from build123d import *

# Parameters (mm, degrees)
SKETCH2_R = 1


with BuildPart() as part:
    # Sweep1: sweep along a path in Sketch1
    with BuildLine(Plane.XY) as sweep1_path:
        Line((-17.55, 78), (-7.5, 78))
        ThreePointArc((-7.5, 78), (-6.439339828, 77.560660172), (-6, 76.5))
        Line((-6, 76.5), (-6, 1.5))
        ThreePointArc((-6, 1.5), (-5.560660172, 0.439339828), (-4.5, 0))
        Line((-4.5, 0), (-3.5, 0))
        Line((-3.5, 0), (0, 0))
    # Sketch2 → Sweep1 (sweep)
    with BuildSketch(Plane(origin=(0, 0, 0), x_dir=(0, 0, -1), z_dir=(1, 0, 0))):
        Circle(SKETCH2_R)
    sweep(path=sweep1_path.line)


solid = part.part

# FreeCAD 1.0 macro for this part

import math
import FreeCAD as App
import Part
import Sketcher
Q = App.Units.Quantity

doc = App.newDocument("Part")
body = doc.addObject("PartDesign::Body", "Body")

# Sketch on YZ plane
sketch1 = body.newObject("Sketcher::SketchObject", "Sketch")
sketch1.AttachmentSupport = (doc.getObject("YZ_Plane"), [""])
sketch1.MapMode = "FlatFace"
sketch1.addGeometry(Part.Circle(App.Vector(0, 0, 0), App.Vector(0, 0, 1), 1), False)
sketch1.addConstraint([
    Sketcher.Constraint("Coincident", 0, 3, -1, 1),
    Sketcher.Constraint("Diameter", 0, Q("2 mm")),
])

# Sketch on XY plane
sketch2 = body.newObject("Sketcher::SketchObject", "Sketch001")
sketch2.AttachmentSupport = (doc.getObject("XY_Plane"), [""])
sketch2.MapMode = "FlatFace"
sketch2.addGeometry([
    Part.LineSegment(App.Vector(-17.55, 78, 0), App.Vector(-7.5, 78, 0)),  # 0
    Part.ArcOfCircle(Part.Circle(App.Vector(-7.5, 76.5, 0), App.Vector(0, 0, 1), 1.5), math.radians(0), math.radians(90)),  # 1
    Part.LineSegment(App.Vector(-6, 76.5, 0), App.Vector(-6, 1.5, 0)),  # 2
    Part.ArcOfCircle(Part.Circle(App.Vector(-4.5, 1.5, 0), App.Vector(0, 0, 1), 1.5), math.radians(180), math.radians(270)),  # 3
    Part.LineSegment(App.Vector(-4.5, 0, 0), App.Vector(0, 0, 0)),  # 4
], False)
sketch2.addConstraint([
    Sketcher.Constraint("Tangent", 0, 2, 1, 2),
    Sketcher.Constraint("Tangent", 1, 1, 2, 1),
    Sketcher.Constraint("Tangent", 2, 2, 3, 1),
    Sketcher.Constraint("Tangent", 3, 2, 4, 1),
    Sketcher.Constraint("Horizontal", 0),
    Sketcher.Constraint("Vertical", 2),
    Sketcher.Constraint("Horizontal", 4),
    Sketcher.Constraint("Coincident", 4, 2, -1, 1),
    Sketcher.Constraint("Equal", 1, 3),
    Sketcher.Constraint("Radius", 1, Q("1.5 mm")),
    Sketcher.Constraint("DistanceY", 2, 2, 2, 1, Q("75 mm")),
    Sketcher.Constraint("DistanceX", 4, 1, 4, 2, Q("4.5 mm")),
    Sketcher.Constraint("DistanceX", 0, 1, 0, 2, Q("10.05 mm")),
])
doc.recompute()

additivepipe = body.newObject("PartDesign::AdditivePipe", "AdditivePipe")
additivepipe.Profile = sketch1
additivepipe.Spine = (sketch2, ["Edge1", "Edge2", "Edge3", "Edge4", "Edge5"])

doc.recompute()
